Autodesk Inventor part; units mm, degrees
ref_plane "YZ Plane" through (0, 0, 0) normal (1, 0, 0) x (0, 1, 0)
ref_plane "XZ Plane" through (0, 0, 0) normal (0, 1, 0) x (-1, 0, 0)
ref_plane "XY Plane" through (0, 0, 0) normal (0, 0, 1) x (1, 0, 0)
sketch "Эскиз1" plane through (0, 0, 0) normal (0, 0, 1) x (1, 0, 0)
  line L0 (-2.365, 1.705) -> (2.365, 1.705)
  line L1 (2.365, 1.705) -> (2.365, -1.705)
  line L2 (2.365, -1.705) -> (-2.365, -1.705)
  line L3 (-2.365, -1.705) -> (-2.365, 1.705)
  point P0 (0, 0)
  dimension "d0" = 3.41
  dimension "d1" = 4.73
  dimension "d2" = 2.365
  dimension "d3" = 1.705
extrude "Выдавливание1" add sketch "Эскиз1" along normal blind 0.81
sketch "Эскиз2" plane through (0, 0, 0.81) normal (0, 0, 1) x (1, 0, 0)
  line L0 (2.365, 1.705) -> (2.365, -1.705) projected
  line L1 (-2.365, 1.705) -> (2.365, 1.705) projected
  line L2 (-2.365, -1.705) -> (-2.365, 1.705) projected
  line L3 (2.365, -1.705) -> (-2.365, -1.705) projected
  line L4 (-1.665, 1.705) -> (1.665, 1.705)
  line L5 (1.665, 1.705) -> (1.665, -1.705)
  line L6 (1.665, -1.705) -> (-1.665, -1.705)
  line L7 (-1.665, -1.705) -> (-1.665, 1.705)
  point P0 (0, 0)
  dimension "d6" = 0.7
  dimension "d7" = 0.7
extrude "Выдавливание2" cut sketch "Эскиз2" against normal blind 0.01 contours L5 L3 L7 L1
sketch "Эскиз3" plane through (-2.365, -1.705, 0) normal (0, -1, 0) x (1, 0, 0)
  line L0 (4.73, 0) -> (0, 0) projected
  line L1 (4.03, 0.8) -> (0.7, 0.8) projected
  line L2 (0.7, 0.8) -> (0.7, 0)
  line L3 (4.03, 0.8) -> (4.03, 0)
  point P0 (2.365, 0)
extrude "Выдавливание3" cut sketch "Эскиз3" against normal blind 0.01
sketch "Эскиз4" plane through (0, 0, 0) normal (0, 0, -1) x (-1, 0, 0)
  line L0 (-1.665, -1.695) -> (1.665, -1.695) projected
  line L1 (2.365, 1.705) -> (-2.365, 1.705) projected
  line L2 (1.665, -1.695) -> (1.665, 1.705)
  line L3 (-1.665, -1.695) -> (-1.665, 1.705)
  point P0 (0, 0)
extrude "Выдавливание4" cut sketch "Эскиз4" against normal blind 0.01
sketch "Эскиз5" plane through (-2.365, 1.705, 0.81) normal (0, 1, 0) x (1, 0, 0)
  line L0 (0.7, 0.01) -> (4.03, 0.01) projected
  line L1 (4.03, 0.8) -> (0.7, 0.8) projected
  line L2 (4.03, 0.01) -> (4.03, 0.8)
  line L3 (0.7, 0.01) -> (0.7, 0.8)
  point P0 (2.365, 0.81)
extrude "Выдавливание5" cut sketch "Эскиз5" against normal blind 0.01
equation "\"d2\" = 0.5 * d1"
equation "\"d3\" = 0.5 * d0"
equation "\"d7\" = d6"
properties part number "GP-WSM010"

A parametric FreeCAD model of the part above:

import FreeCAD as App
import Part
import Sketcher


def add_polygon(sketch, points):
    """Adds a closed chain of lines whose ends are joined by coincident constraints."""
    first, n = sketch.GeometryCount, len(points)
    for a, b in zip(points, points[1:] + points[:1]):
        sketch.addGeometry(Part.LineSegment(App.Vector(*a, 0), App.Vector(*b, 0)), False)
    for i in range(n):
        sketch.addConstraint(Sketcher.Constraint("Coincident", first + i, 2, first + (i + 1) % n, 1))

doc = App.newDocument("Part")
body = doc.addObject("PartDesign::Body", "Body")

# Sketch on XY plane
sketch1 = body.newObject("Sketcher::SketchObject", "Sketch")
sketch1.AttachmentSupport = (doc.getObject("XY_Plane"), [""])
sketch1.MapMode = "FlatFace"
add_polygon(sketch1, [(2.4, 1.7), (-2.4, 1.7), (-2.4, -1.7), (2.4, -1.7)])  # lines 0-3
sketch1.addConstraint([
    Sketcher.Constraint("Horizontal", 0),
    Sketcher.Constraint("Vertical", 1),
    Sketcher.Constraint("Horizontal", 2),
    Sketcher.Constraint("Vertical", 3),
    Sketcher.Constraint("Symmetric", 0, 2, 2, 2, -1, 1),
    Sketcher.Constraint("DistanceX", 0, 2, 0, 1, 4.73),
    Sketcher.Constraint("DistanceY", 1, 2, 1, 1, 3.41),
])
pad1 = body.newObject("PartDesign::Pad", "Pad")
pad1.Profile = sketch1
pad1.Length = 0.81

# Sketch on XY plane
sketch2 = body.newObject("Sketcher::SketchObject", "Sketch001")
sketch2.AttachmentSupport = (doc.getObject("XY_Plane"), [""])
sketch2.MapMode = "FlatFace"
sketch2.AttachmentOffset = App.Placement(App.Vector(0, 0, 0.81), App.Rotation())
add_polygon(sketch2, [(1.7, -1.7), (1.7, 1.7), (-1.7, 1.7), (-1.7, -1.7)])  # lines 0-3
sketch2.addConstraint([
    Sketcher.Constraint("Vertical", 0),
    Sketcher.Constraint("Horizontal", 1),
    Sketcher.Constraint("Vertical", 2),
    Sketcher.Constraint("Horizontal", 3),
    Sketcher.Constraint("Symmetric", 0, 2, 2, 2, -1, 1),
    Sketcher.Constraint("DistanceX", 1, 2, 1, 1, 3.33),
    Sketcher.Constraint("DistanceY", 0, 1, 0, 2, 3.41),
])
pocket1 = body.newObject("PartDesign::Pocket", "Pocket")
pocket1.Profile = sketch2
pocket1.Length = 0.01

# Sketch on XZ plane
sketch3 = body.newObject("Sketcher::SketchObject", "Sketch002")
sketch3.AttachmentSupport = (doc.getObject("XZ_Plane"), [""])
sketch3.MapMode = "FlatFace"
sketch3.AttachmentOffset = App.Placement(App.Vector(0, 0, 1.705), App.Rotation())
add_polygon(sketch3, [(-1.7, 0), (1.7, 0), (1.7, 0.8), (-1.7, 0.8)])  # lines 0-3
sketch3.addConstraint([
    Sketcher.Constraint("Horizontal", 0),
    Sketcher.Constraint("Vertical", 1),
    Sketcher.Constraint("Horizontal", 2),
    Sketcher.Constraint("Vertical", 3),
    Sketcher.Constraint("Symmetric", 0, 2, 3, 2, -1, 1),
    Sketcher.Constraint("DistanceY", 1, 1, 1, 2, 0.8),
    Sketcher.Constraint("DistanceX", 0, 1, 0, 2, 3.33),
])
pocket2 = body.newObject("PartDesign::Pocket", "Pocket001")
pocket2.Profile = sketch3
pocket2.Length = 0.01

# Sketch on XY plane
sketch4 = body.newObject("Sketcher::SketchObject", "Sketch003")
sketch4.AttachmentSupport = (doc.getObject("XY_Plane"), [""])
sketch4.MapMode = "FlatFace"
add_polygon(sketch4, [(1.7, 1.7), (1.7, -1.7), (-1.7, -1.7), (-1.7, 1.7)])  # lines 0-3
sketch4.addConstraint([
    Sketcher.Constraint("Vertical", 0),
    Sketcher.Constraint("Horizontal", 1),
    Sketcher.Constraint("Vertical", 2),
    Sketcher.Constraint("Horizontal", 3),
    Sketcher.Constraint("DistanceY", 0, 2, 0, 1, 3.4),
    Sketcher.Constraint("DistanceX", 1, 2, 1, 1, 3.33),
    Sketcher.Constraint("DistanceX", -1, 1, 0, 2, 1.665),
    Sketcher.Constraint("DistanceY", 0, 2, -1, 1, 1.695),
])
pocket3 = body.newObject("PartDesign::Pocket", "Pocket002")
pocket3.Profile = sketch4
pocket3.Length = 0.01
pocket3.Reversed = True

# Sketch on XZ plane
sketch5 = body.newObject("Sketcher::SketchObject", "Sketch004")
sketch5.AttachmentSupport = (doc.getObject("XZ_Plane"), [""])
sketch5.MapMode = "FlatFace"
sketch5.AttachmentOffset = App.Placement(App.Vector(0, 0, -1.705), App.Rotation())
add_polygon(sketch5, [(-1.7, 0), (-1.7, 0.8), (1.7, 0.8), (1.7, 0)])  # lines 0-3
sketch5.addConstraint([
    Sketcher.Constraint("Vertical", 0),
    Sketcher.Constraint("Horizontal", 1),
    Sketcher.Constraint("Vertical", 2),
    Sketcher.Constraint("Horizontal", 3),
    Sketcher.Constraint("DistanceX", 1, 1, 1, 2, 3.33),
    Sketcher.Constraint("DistanceY", 0, 1, 0, 2, 0.79),
    Sketcher.Constraint("DistanceY", -1, 1, 0, 2, 0.8),
    Sketcher.Constraint("DistanceX", 0, 2, -1, 1, 1.665),
])
pocket4 = body.newObject("PartDesign::Pocket", "Pocket003")
pocket4.Profile = sketch5
pocket4.Length = 0.01
pocket4.Reversed = True

doc.recompute()
